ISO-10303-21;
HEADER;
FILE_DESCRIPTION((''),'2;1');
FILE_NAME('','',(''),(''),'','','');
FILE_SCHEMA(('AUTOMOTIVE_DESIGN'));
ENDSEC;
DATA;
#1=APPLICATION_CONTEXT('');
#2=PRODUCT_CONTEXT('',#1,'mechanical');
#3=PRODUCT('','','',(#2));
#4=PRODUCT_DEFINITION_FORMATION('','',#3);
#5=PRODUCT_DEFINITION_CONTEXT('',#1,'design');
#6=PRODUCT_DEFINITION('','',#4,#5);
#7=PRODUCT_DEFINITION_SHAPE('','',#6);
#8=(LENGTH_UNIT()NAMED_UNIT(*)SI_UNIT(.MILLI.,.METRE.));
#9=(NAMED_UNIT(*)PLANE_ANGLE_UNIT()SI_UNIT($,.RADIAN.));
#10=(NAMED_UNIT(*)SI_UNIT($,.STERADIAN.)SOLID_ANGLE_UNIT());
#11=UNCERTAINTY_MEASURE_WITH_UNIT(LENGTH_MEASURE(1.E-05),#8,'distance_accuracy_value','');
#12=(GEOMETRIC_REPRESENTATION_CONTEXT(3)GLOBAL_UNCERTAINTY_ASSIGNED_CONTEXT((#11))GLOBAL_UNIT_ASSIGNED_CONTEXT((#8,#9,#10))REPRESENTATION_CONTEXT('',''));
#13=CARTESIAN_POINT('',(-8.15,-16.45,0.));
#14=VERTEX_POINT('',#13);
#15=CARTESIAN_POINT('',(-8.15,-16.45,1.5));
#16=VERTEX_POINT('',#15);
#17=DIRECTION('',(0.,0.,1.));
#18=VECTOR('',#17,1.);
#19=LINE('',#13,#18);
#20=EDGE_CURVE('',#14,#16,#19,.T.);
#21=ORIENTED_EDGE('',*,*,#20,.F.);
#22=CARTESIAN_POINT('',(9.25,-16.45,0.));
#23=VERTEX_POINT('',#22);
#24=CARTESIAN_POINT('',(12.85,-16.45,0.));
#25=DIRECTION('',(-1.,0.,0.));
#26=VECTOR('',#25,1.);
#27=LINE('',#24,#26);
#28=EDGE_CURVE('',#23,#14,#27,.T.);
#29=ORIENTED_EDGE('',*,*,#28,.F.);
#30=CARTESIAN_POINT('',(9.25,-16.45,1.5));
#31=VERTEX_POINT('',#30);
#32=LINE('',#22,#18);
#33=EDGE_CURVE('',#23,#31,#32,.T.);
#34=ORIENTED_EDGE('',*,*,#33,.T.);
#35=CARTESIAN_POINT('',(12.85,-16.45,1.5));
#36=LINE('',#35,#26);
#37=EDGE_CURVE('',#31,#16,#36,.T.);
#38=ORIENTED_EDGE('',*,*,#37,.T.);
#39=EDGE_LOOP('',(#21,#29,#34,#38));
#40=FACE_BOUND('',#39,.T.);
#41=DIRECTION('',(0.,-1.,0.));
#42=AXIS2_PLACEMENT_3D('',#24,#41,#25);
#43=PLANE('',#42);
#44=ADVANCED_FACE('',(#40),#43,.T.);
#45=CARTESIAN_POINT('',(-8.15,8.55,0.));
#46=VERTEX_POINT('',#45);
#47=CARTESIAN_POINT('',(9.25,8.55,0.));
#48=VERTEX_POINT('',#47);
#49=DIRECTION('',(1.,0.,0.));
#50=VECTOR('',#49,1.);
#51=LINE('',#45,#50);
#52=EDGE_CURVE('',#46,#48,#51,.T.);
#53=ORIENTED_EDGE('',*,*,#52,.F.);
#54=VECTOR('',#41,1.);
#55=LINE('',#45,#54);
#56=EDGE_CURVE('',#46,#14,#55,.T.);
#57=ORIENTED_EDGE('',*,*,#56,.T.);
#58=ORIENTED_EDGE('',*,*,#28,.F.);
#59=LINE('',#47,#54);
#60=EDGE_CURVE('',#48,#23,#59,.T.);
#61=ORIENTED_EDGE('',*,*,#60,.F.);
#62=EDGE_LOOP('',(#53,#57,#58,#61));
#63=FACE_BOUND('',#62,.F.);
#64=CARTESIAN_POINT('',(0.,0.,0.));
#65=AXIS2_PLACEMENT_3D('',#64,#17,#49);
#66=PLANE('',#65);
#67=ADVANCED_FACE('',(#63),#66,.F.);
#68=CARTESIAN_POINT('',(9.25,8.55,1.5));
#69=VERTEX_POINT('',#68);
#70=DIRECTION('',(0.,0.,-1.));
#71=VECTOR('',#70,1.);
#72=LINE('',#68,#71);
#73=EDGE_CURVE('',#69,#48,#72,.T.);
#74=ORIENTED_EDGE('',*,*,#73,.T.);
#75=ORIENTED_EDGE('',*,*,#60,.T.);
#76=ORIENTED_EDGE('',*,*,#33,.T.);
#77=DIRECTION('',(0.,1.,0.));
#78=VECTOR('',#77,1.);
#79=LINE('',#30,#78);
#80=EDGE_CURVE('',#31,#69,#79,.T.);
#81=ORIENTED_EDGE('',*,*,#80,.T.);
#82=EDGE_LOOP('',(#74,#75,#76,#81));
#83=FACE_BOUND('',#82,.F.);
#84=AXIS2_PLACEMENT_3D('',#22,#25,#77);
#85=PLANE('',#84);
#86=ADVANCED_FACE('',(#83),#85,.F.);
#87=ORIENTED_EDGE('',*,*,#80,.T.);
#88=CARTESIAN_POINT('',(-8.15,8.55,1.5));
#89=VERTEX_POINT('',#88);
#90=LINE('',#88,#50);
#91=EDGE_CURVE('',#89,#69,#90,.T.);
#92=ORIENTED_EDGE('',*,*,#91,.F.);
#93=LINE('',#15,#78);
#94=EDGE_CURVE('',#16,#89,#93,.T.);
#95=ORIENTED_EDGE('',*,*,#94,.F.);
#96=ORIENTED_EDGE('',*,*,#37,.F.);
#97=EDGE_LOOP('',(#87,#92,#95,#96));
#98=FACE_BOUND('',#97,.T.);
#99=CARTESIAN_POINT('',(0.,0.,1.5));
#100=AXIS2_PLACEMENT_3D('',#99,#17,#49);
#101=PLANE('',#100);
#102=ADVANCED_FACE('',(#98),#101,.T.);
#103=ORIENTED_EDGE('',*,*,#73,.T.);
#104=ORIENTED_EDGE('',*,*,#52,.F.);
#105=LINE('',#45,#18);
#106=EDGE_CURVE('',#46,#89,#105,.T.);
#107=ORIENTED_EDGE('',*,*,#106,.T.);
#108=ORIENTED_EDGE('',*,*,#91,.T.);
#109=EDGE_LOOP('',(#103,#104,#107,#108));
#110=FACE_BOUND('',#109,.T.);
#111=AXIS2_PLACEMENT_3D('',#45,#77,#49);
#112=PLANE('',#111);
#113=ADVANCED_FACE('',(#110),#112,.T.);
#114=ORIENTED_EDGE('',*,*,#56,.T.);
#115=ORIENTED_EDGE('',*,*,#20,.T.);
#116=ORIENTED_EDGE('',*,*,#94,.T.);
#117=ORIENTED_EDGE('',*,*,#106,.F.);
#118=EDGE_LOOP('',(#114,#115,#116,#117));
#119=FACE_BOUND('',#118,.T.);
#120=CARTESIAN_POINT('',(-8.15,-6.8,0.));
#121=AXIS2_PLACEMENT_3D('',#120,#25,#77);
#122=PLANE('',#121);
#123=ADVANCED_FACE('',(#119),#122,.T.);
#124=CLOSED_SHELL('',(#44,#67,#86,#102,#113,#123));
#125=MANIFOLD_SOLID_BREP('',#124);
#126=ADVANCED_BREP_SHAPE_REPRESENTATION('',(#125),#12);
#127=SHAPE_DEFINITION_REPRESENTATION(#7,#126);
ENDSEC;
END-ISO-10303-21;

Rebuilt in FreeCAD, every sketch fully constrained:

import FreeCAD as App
import Part
import Sketcher

V = App.Vector

doc = App.newDocument("Part")
body = doc.addObject("PartDesign::Body", "Body")

# Sketch on XY plane
sketch1 = body.newObject("Sketcher::SketchObject", "Sketch")
sketch1.AttachmentSupport = (doc.getObject("XY_Plane"), [""])
sketch1.MapMode = "FlatFace"
sketch1.addGeometry(Part.LineSegment(V(-8, -16, 0), V(13, -16, 0)), False)
sketch1.addGeometry(Part.LineSegment(V(13, -16, 0), V(13, 9, 0)), False)
sketch1.addGeometry(Part.LineSegment(V(13, 9, 0), V(-8, 9, 0)), False)
sketch1.addGeometry(Part.LineSegment(V(-8, 9, 0), V(-8, -16, 0)), False)
sketch1.addConstraint(Sketcher.Constraint("Coincident", 0, 2, 1, 1))
sketch1.addConstraint(Sketcher.Constraint("Coincident", 1, 2, 2, 1))
sketch1.addConstraint(Sketcher.Constraint("Coincident", 2, 2, 3, 1))
sketch1.addConstraint(Sketcher.Constraint("Coincident", 3, 2, 0, 1))
sketch1.addConstraint(Sketcher.Constraint("Horizontal", 0))
sketch1.addConstraint(Sketcher.Constraint("Vertical", 1))
sketch1.addConstraint(Sketcher.Constraint("Horizontal", 2))
sketch1.addConstraint(Sketcher.Constraint("Vertical", 3))
sketch1.addConstraint(Sketcher.Constraint("DistanceX", 0, 1, 0, 2, 21.0))
sketch1.addConstraint(Sketcher.Constraint("DistanceY", 1, 1, 1, 2, 25.0))
sketch1.addConstraint(Sketcher.Constraint("DistanceX", -1, 1, 0, 2, 12.85))
sketch1.addConstraint(Sketcher.Constraint("DistanceY", 0, 2, -1, 1, 16.45))
pad1 = body.newObject("PartDesign::Pad", "Pad")
pad1.Profile = sketch1
pad1.Length = 1.5

# Sketch on XY plane
sketch2 = body.newObject("Sketcher::SketchObject", "Sketch001")
sketch2.AttachmentSupport = (doc.getObject("XY_Plane"), [""])
sketch2.MapMode = "FlatFace"
sketch2.AttachmentOffset = App.Placement(V(0, 0, 1.5), App.Rotation())
sketch2.addGeometry(Part.LineSegment(V(9.2, 8.6, 0), V(9.2, -6.8, 0)), False)
sketch2.addGeometry(Part.LineSegment(V(9.2, -6.8, 0), V(12.8, -6.8, 0)), False)
sketch2.addGeometry(Part.LineSegment(V(12.8, -6.8, 0), V(12.8, 8.6, 0)), False)
sketch2.addGeometry(Part.LineSegment(V(12.8, 8.6, 0), V(9.2, 8.6, 0)), False)
sketch2.addConstraint(Sketcher.Constraint("Coincident", 0, 2, 1, 1))
sketch2.addConstraint(Sketcher.Constraint("Coincident", 1, 2, 2, 1))
sketch2.addConstraint(Sketcher.Constraint("Coincident", 2, 2, 3, 1))
sketch2.addConstraint(Sketcher.Constraint("Coincident", 3, 2, 0, 1))
sketch2.addConstraint(Sketcher.Constraint("Vertical", 0))
sketch2.addConstraint(Sketcher.Constraint("Horizontal", 1))
sketch2.addConstraint(Sketcher.Constraint("Vertical", 2))
sketch2.addConstraint(Sketcher.Constraint("Horizontal", 3))
sketch2.addConstraint(Sketcher.Constraint("DistanceX", 1, 1, 1, 2, 3.6))
sketch2.addConstraint(Sketcher.Constraint("DistanceY", 0, 2, 0, 1, 15.35))
sketch2.addConstraint(Sketcher.Constraint("DistanceY", 0, 2, -1, 1, 6.8))
sketch2.addConstraint(Sketcher.Constraint("DistanceX", -1, 1, 0, 2, 9.25))
pocket1 = body.newObject("PartDesign::Pocket", "Pocket")
pocket1.Profile = sketch2
pocket1.Length = 10

# Sketch on XY plane
sketch3 = body.newObject("Sketcher::SketchObject", "Sketch002")
sketch3.AttachmentSupport = (doc.getObject("XY_Plane"), [""])
sketch3.MapMode = "FlatFace"
sketch3.addGeometry(Part.LineSegment(V(9.2, -16.4, 0), V(9.2, -6.8, 0)), False)
sketch3.addGeometry(Part.LineSegment(V(9.2, -6.8, 0), V(12.8, -6.8, 0)), False)
sketch3.addGeometry(Part.LineSegment(V(12.8, -6.8, 0), V(12.8, -16.4, 0)), False)
sketch3.addGeometry(Part.LineSegment(V(12.8, -16.4, 0), V(9.2, -16.4, 0)), False)
sketch3.addConstraint(Sketcher.Constraint("Coincident", 0, 2, 1, 1))
sketch3.addConstraint(Sketcher.Constraint("Coincident", 1, 2, 2, 1))
sketch3.addConstraint(Sketcher.Constraint("Coincident", 2, 2, 3, 1))
sketch3.addConstraint(Sketcher.Constraint("Coincident", 3, 2, 0, 1))
sketch3.addConstraint(Sketcher.Constraint("Vertical", 0))
sketch3.addConstraint(Sketcher.Constraint("Horizontal", 1))
sketch3.addConstraint(Sketcher.Constraint("Vertical", 2))
sketch3.addConstraint(Sketcher.Constraint("Horizontal", 3))
sketch3.addConstraint(Sketcher.Constraint("DistanceX", 1, 1, 1, 2, 3.6))
sketch3.addConstraint(Sketcher.Constraint("DistanceY", 0, 1, 0, 2, 9.65))
sketch3.addConstraint(Sketcher.Constraint("DistanceY", 0, 2, -1, 1, 6.8))
sketch3.addConstraint(Sketcher.Constraint("DistanceX", -1, 1, 0, 2, 9.25))
pocket2 = body.newObject("PartDesign::Pocket", "Pocket001")
pocket2.Profile = sketch3
pocket2.Length = 10
pocket2.Reversed = True

doc.recompute()
